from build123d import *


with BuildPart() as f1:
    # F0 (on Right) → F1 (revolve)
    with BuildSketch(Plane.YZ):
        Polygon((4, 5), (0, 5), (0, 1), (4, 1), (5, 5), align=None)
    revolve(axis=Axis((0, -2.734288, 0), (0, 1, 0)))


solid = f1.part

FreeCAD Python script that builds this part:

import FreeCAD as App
import Part
import Sketcher

doc = App.newDocument("Part")
body = doc.addObject("PartDesign::Body", "Body")

# Sketch on YZ plane
sketch1 = doc.addObject("Sketcher::SketchObject", "Sketch")
body.addObject(sketch1)
sketch1.AttachmentSupport = (doc.YZ_Plane, [""])
sketch1.MapMode = "FlatFace"
sketch1.addGeometry([
    Part.LineSegment(App.Vector(0, 5, 0), App.Vector(0, 1, 0)),
    Part.LineSegment(App.Vector(0, 1, 0), App.Vector(4, 1, 0)),
    Part.LineSegment(App.Vector(4, 1, 0), App.Vector(5, 5, 0)),
    Part.LineSegment(App.Vector(5, 5, 0), App.Vector(0, 5, 0)),
], False)
sketch1.addConstraint([
    Sketcher.Constraint("Coincident", 0, 2, 1, 1),
    Sketcher.Constraint("Coincident", 1, 2, 2, 1),
    Sketcher.Constraint("Coincident", 2, 2, 3, 1),
    Sketcher.Constraint("Coincident", 3, 2, 0, 1),
    Sketcher.Constraint("Vertical", 0),
    Sketcher.Constraint("Horizontal", 1),
    Sketcher.Constraint("Horizontal", 3),
    Sketcher.Constraint("PointOnObject", 0, 2, -2),
    Sketcher.Constraint("Equal", 1, 0),
    Sketcher.Constraint("DistanceX", 1, 1, 1, 2, 4.0),
    Sketcher.Constraint("DistanceX", 3, 2, 3, 1, 5.0),
    Sketcher.Constraint("DistanceY", -1, 1, 0, 2, 1.0),
])
revolution = doc.addObject("PartDesign::Revolution", "Revolution")
body.addObject(revolution)
revolution.Profile = sketch1
revolution.ReferenceAxis = (sketch1, ["H_Axis"])
revolution.Angle = 360

doc.recompute()
